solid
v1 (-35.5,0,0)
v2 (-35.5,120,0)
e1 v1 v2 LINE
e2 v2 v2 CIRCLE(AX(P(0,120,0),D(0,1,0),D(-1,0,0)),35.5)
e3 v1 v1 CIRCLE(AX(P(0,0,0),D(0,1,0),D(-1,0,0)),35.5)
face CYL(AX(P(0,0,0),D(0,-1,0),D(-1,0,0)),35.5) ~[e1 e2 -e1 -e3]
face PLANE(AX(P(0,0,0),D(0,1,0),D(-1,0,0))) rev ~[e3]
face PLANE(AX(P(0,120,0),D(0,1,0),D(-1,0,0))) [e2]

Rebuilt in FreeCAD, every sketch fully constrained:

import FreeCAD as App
import Part
import Sketcher
from FreeCAD import Vector
Q = App.Units.Quantity

doc = App.newDocument("Part")
body = doc.addObject("PartDesign::Body", "Body")

# Sketch on XZ plane
sketch1 = doc.addObject("Sketcher::SketchObject", "Sketch")
body.addObject(sketch1)
sketch1.AttachmentSupport = (doc.XZ_Plane, [""])
sketch1.MapMode = "FlatFace"
sketch1.addGeometry(Part.Circle(Vector(0, 0, 0), Vector(0, 0, 1), 35.5), False)
sketch1.addConstraint([
    Sketcher.Constraint("Coincident", 0, 3, -1, 1),
    Sketcher.Constraint("Diameter", 0, Q("71 mm")),
])
pad1 = doc.addObject("PartDesign::Pad", "Pad")
body.addObject(pad1)
pad1.Profile = sketch1
pad1.Length = 120
pad1.Reversed = True

doc.recompute()
